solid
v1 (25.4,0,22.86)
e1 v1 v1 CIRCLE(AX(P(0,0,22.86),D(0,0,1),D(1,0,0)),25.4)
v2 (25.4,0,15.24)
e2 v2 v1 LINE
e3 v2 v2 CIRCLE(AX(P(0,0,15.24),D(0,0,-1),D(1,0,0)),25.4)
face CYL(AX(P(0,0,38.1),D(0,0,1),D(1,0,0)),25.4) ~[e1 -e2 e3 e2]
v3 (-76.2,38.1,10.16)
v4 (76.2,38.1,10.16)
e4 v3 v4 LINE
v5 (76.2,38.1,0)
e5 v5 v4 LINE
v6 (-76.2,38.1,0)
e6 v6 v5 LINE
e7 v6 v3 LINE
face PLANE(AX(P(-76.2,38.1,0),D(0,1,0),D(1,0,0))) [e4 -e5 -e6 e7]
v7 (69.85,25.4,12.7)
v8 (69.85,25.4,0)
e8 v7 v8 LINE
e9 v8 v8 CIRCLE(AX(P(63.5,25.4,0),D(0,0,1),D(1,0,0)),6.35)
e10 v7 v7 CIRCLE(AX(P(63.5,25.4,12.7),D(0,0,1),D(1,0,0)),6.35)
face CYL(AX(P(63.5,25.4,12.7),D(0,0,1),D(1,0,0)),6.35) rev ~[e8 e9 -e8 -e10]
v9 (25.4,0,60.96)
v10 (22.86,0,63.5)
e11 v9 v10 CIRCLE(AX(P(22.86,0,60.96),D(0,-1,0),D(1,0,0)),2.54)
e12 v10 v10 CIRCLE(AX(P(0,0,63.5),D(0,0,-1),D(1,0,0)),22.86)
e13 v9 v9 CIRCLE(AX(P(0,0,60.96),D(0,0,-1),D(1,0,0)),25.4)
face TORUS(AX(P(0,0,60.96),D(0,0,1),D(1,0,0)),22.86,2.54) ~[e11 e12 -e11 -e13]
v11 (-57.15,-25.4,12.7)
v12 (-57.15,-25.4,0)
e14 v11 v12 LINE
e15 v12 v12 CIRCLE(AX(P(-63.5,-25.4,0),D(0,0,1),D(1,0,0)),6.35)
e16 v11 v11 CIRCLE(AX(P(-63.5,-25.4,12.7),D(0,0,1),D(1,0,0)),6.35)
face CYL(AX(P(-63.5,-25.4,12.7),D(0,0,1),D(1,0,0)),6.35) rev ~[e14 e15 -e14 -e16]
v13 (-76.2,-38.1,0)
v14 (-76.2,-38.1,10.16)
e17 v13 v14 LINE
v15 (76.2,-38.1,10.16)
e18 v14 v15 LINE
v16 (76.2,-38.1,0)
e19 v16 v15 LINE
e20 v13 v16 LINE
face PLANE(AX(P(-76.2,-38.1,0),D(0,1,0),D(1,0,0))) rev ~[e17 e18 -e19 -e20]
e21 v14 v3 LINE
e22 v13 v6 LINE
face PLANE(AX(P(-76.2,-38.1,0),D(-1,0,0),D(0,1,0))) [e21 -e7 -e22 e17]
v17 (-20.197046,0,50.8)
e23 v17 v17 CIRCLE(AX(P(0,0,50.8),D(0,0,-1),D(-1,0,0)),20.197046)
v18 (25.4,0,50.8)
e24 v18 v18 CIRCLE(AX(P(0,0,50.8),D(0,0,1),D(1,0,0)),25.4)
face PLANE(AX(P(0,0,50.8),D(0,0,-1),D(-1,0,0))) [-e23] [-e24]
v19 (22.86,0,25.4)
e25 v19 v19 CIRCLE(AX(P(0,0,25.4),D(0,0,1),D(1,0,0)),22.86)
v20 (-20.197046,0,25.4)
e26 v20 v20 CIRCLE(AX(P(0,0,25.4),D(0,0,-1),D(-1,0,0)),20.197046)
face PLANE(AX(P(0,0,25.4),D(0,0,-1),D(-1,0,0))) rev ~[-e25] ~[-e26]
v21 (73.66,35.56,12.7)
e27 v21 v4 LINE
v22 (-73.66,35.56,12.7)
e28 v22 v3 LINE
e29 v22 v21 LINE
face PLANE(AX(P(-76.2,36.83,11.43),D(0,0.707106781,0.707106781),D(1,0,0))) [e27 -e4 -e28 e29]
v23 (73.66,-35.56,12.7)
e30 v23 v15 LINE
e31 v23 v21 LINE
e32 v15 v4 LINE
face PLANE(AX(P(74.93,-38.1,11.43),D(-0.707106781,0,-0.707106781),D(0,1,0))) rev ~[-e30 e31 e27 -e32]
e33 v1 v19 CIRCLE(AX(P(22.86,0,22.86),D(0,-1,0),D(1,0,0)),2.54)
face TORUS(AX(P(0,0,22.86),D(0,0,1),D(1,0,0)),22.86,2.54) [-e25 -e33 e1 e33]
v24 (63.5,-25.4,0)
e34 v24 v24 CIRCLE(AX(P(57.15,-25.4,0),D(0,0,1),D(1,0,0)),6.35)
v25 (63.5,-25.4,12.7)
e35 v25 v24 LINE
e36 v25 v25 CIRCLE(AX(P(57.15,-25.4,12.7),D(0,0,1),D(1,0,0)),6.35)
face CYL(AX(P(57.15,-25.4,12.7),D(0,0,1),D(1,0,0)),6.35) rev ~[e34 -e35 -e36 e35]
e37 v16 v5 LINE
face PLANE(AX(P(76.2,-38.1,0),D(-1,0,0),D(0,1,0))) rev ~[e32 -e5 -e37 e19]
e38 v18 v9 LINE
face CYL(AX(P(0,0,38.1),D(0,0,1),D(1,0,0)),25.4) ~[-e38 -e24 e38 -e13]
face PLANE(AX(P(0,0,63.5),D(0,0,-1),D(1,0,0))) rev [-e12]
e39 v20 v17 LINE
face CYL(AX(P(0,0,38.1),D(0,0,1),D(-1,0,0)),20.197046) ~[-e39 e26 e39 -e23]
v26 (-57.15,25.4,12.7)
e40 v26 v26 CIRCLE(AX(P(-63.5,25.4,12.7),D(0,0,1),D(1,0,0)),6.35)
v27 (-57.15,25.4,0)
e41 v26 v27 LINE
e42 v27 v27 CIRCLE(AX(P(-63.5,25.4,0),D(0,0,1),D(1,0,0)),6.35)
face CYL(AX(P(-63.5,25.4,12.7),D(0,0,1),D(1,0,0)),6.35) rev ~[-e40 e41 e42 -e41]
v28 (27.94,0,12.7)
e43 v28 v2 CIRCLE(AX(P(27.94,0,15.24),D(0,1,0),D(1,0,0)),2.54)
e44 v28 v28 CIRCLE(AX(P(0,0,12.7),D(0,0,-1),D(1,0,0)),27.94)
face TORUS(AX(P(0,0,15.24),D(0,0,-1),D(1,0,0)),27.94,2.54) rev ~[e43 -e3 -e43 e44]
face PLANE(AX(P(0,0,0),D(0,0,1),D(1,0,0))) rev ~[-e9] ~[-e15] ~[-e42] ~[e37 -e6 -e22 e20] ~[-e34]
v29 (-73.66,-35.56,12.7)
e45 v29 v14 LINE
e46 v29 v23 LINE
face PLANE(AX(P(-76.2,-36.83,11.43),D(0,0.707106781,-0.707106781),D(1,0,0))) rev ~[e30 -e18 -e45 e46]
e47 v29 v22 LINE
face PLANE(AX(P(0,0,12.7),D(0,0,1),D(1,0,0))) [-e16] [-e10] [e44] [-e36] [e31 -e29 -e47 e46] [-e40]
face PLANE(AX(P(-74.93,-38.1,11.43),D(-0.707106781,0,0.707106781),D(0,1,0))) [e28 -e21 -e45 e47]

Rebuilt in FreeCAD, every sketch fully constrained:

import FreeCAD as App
import Part
import Sketcher
from FreeCAD import Vector
Q = App.Units.Quantity


def edges_at(feature, points):
    """Names of the edges that pass closest to the given points."""
    edges = feature.Shape.Edges
    near = lambda p: min(range(len(edges)), key=lambda i: edges[i].distToShape(Part.Vertex(*p))[0])
    return sorted({f"Edge{near(p) + 1}" for p in points})

doc = App.newDocument("Part")
body = doc.addObject("PartDesign::Body", "Body")

# Sketch on XY plane
sketch1 = body.newObject("Sketcher::SketchObject", "Sketch")
sketch1.AttachmentSupport = (doc.getObject("XY_Plane"), [""])
sketch1.MapMode = "FlatFace"
sketch1.addGeometry([
    Part.LineSegment(Vector(-76.2, 38.1, 0), Vector(-76.2, -38.1, 0)),
    Part.LineSegment(Vector(-76.2, -38.1, 0), Vector(76.2, -38.1, 0)),
    Part.LineSegment(Vector(76.2, -38.1, 0), Vector(76.2, 38.1, 0)),
    Part.LineSegment(Vector(76.2, 38.1, 0), Vector(-76.2, 38.1, 0)),
], False)
sketch1.addConstraint([
    Sketcher.Constraint("Coincident", 0, 2, 1, 1),
    Sketcher.Constraint("Coincident", 1, 2, 2, 1),
    Sketcher.Constraint("Coincident", 2, 2, 3, 1),
    Sketcher.Constraint("Coincident", 3, 2, 0, 1),
    Sketcher.Constraint("Vertical", 0),
    Sketcher.Constraint("Horizontal", 1),
    Sketcher.Constraint("Vertical", 2),
    Sketcher.Constraint("Horizontal", 3),
    Sketcher.Constraint("Symmetric", 0, 2, 2, 2, -1, 1),
    Sketcher.Constraint("DistanceX", 1, 1, 1, 2, Q("6 in")),
    Sketcher.Constraint("DistanceY", 0, 2, 0, 1, Q("3 in")),
])
pad1 = body.newObject("PartDesign::Pad", "Pad")
pad1.Profile = sketch1
pad1.Length = Q("0.5 in")

# Sketch on XY plane
sketch2 = body.newObject("Sketcher::SketchObject", "Sketch001")
sketch2.AttachmentSupport = (doc.getObject("XY_Plane"), [""])
sketch2.MapMode = "FlatFace"
sketch2.AttachmentOffset = App.Placement(Vector(0, 0, 0.5 * 25.4), App.Rotation())
sketch2.addGeometry(Part.Circle(Vector(57.15, -25.4, 0), Vector(0, 0, 1), 6.35), False)
sketch2.addConstraint([
    Sketcher.Constraint("Diameter", 0, Q("0.5 in")),
    Sketcher.Constraint("DistanceY", 0, 3, -1, 1, Q("1 in")),
    Sketcher.Constraint("DistanceX", -1, 1, 0, 3, Q("2.25 in")),
])
pocket1 = body.newObject("PartDesign::Pocket", "Pocket")
pocket1.Profile = sketch2
pocket1.Type = "ThroughAll"

# Sketch on XY plane
sketch3 = body.newObject("Sketcher::SketchObject", "Sketch002")
sketch3.AttachmentSupport = (doc.getObject("XY_Plane"), [""])
sketch3.MapMode = "FlatFace"
sketch3.AttachmentOffset = App.Placement(Vector(0, 0, 0.5 * 25.4), App.Rotation())
sketch3.addGeometry(Part.Circle(Vector(63.5, 25.4, 0), Vector(0, 0, 1), 6.35), False)
sketch3.addConstraint([
    Sketcher.Constraint("Diameter", 0, Q("0.5 in")),
    Sketcher.Constraint("DistanceY", -1, 1, 0, 3, Q("1 in")),
    Sketcher.Constraint("DistanceX", -1, 1, 0, 3, Q("2.5 in")),
])
pocket2 = body.newObject("PartDesign::Pocket", "Pocket001")
pocket2.Profile = sketch3
pocket2.Type = "ThroughAll"

# Sketch on XY plane
sketch4 = body.newObject("Sketcher::SketchObject", "Sketch003")
sketch4.AttachmentSupport = (doc.getObject("XY_Plane"), [""])
sketch4.MapMode = "FlatFace"
sketch4.AttachmentOffset = App.Placement(Vector(0, 0, 0.5 * 25.4), App.Rotation())
sketch4.addGeometry(Part.Circle(Vector(-63.5, -25.4, 0), Vector(0, 0, 1), 6.35), False)
sketch4.addConstraint([
    Sketcher.Constraint("Diameter", 0, Q("0.5 in")),
    Sketcher.Constraint("DistanceY", 0, 3, -1, 1, Q("1 in")),
    Sketcher.Constraint("DistanceX", 0, 3, -1, 1, Q("2.5 in")),
])
pocket3 = body.newObject("PartDesign::Pocket", "Pocket002")
pocket3.Profile = sketch4
pocket3.Type = "ThroughAll"

# Sketch on XY plane
sketch5 = body.newObject("Sketcher::SketchObject", "Sketch004")
sketch5.AttachmentSupport = (doc.getObject("XY_Plane"), [""])
sketch5.MapMode = "FlatFace"
sketch5.AttachmentOffset = App.Placement(Vector(0, 0, 0.5 * 25.4), App.Rotation())
sketch5.addGeometry(Part.Circle(Vector(-63.5, 25.4, 0), Vector(0, 0, 1), 6.35), False)
sketch5.addConstraint([
    Sketcher.Constraint("Diameter", 0, Q("0.5 in")),
    Sketcher.Constraint("DistanceY", -1, 1, 0, 3, Q("1 in")),
    Sketcher.Constraint("DistanceX", 0, 3, -1, 1, Q("2.5 in")),
])
pocket4 = body.newObject("PartDesign::Pocket", "Pocket003")
pocket4.Profile = sketch5
pocket4.Type = "ThroughAll"

# Sketch on XZ plane
sketch6 = body.newObject("Sketcher::SketchObject", "Sketch005")
sketch6.AttachmentSupport = (doc.getObject("XZ_Plane"), [""])
sketch6.MapMode = "FlatFace"
sketch6.addGeometry([
    Part.LineSegment(Vector(0, 63.5, 0), Vector(0, 12.7, 0)),
    Part.LineSegment(Vector(0, 12.7, 0), Vector(25.4, 12.7, 0)),
    Part.LineSegment(Vector(25.4, 12.7, 0), Vector(25.4, 63.5, 0)),
    Part.LineSegment(Vector(25.4, 63.5, 0), Vector(0, 63.5, 0)),
], False)
sketch6.addConstraint([
    Sketcher.Constraint("Coincident", 0, 2, 1, 1),
    Sketcher.Constraint("Coincident", 1, 2, 2, 1),
    Sketcher.Constraint("Coincident", 2, 2, 3, 1),
    Sketcher.Constraint("Coincident", 3, 2, 0, 1),
    Sketcher.Constraint("Vertical", 0),
    Sketcher.Constraint("Horizontal", 1),
    Sketcher.Constraint("Vertical", 2),
    Sketcher.Constraint("Horizontal", 3),
    Sketcher.Constraint("PointOnObject", 0, 2, -2),
    Sketcher.Constraint("DistanceX", 1, 1, 1, 2, Q("1 in")),
    Sketcher.Constraint("DistanceY", 0, 2, 0, 1, Q("2 in")),
    Sketcher.Constraint("DistanceY", -1, 1, 0, 2, Q("0.5 in")),
])
revolution = body.newObject("PartDesign::Revolution", "Revolution")
revolution.Profile = sketch6
revolution.ReferenceAxis = (sketch6, ["V_Axis"])
revolution.Angle = 360

# Sketch on XZ plane
sketch7 = body.newObject("Sketcher::SketchObject", "Sketch006")
sketch7.AttachmentSupport = (doc.getObject("XZ_Plane"), [""])
sketch7.MapMode = "FlatFace"
sketch7.addGeometry([
    Part.LineSegment(Vector(-30.357046, 50.8, 0), Vector(-30.357046, 25.4, 0)),
    Part.LineSegment(Vector(-30.357046, 25.4, 0), Vector(-20.197046, 25.4, 0)),
    Part.LineSegment(Vector(-20.197046, 25.4, 0), Vector(-20.197046, 50.8, 0)),
    Part.LineSegment(Vector(-20.197046, 50.8, 0), Vector(-30.357046, 50.8, 0)),
], False)
sketch7.addConstraint([
    Sketcher.Constraint("Coincident", 0, 2, 1, 1),
    Sketcher.Constraint("Coincident", 1, 2, 2, 1),
    Sketcher.Constraint("Coincident", 2, 2, 3, 1),
    Sketcher.Constraint("Coincident", 3, 2, 0, 1),
    Sketcher.Constraint("Vertical", 0),
    Sketcher.Constraint("Horizontal", 1),
    Sketcher.Constraint("Vertical", 2),
    Sketcher.Constraint("Horizontal", 3),
    Sketcher.Constraint("DistanceY", 0, 2, 0, 1, Q("1 in")),
    Sketcher.Constraint("DistanceX", 1, 1, 1, 2, Q("0.4 in")),
    Sketcher.Constraint("DistanceY", -1, 1, 0, 2, Q("1 in")),
    Sketcher.Constraint("DistanceX", 0, 2, -1, 1, 30.357046),
])
groove = body.newObject("PartDesign::Groove", "Groove")
groove.Profile = sketch7
groove.ReferenceAxis = (sketch7, ["V_Axis"])
groove.Angle = 360
doc.recompute()

fillet = body.newObject("PartDesign::Fillet", "Fillet")
fillet.Base = (groove, edges_at(groove, [(-25.4, 0, 12.7), (-25.4, 0, 25.4), (-25.4, 0, 63.5)]))
fillet.Radius = Q("0.1 in")
doc.recompute()

chamfer = body.newObject("PartDesign::Chamfer", "Chamfer")
chamfer.Base = (fillet, edges_at(fillet, [
    (0, -38.1, 12.7),
    (-76.2, 0, 12.7),
    (0, 38.1, 12.7),
    (76.2, 0, 12.7),
]))
chamfer.Size = Q("0.1 in")

doc.recompute()
